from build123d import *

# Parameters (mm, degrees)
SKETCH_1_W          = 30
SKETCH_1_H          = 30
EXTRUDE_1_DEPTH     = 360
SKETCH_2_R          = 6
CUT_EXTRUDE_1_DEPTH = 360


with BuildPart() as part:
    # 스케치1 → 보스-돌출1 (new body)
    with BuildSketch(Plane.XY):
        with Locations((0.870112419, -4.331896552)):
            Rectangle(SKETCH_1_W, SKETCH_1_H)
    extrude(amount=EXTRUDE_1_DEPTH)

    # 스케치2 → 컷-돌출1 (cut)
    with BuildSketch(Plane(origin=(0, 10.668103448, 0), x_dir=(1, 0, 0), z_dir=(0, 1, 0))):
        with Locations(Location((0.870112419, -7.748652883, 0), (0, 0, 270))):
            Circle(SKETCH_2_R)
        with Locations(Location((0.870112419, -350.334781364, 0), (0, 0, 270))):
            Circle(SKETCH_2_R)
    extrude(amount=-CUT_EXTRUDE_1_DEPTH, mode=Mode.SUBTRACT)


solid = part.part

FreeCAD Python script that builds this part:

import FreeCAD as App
import Part
import Sketcher

V = App.Vector

doc = App.newDocument("Part")
body = doc.addObject("PartDesign::Body", "Body")

# Sketch on XY plane
sketch1 = body.newObject("Sketcher::SketchObject", "Sketch")
sketch1.AttachmentSupport = (doc.getObject("XY_Plane"), [""])
sketch1.MapMode = "FlatFace"
sketch1.addGeometry(Part.LineSegment(V(-14, 11, 0), V(-14, -19, 0)), False)
sketch1.addGeometry(Part.LineSegment(V(-14, -19, 0), V(16, -19, 0)), False)
sketch1.addGeometry(Part.LineSegment(V(16, -19, 0), V(16, 11, 0)), False)
sketch1.addGeometry(Part.LineSegment(V(16, 11, 0), V(-14, 11, 0)), False)
sketch1.addConstraint(Sketcher.Constraint("Coincident", 0, 2, 1, 1))
sketch1.addConstraint(Sketcher.Constraint("Coincident", 1, 2, 2, 1))
sketch1.addConstraint(Sketcher.Constraint("Coincident", 2, 2, 3, 1))
sketch1.addConstraint(Sketcher.Constraint("Coincident", 3, 2, 0, 1))
sketch1.addConstraint(Sketcher.Constraint("Vertical", 0))
sketch1.addConstraint(Sketcher.Constraint("Horizontal", 1))
sketch1.addConstraint(Sketcher.Constraint("Vertical", 2))
sketch1.addConstraint(Sketcher.Constraint("Horizontal", 3))
sketch1.addConstraint(Sketcher.Constraint("Equal", 3, 0))
sketch1.addConstraint(Sketcher.Constraint("DistanceX", 1, 1, 1, 2, 30.0))
sketch1.addConstraint(Sketcher.Constraint("DistanceX", 0, 2, -1, 1, 14.129888))
sketch1.addConstraint(Sketcher.Constraint("DistanceY", 0, 2, -1, 1, 19.331897))
pad1 = body.newObject("PartDesign::Pad", "Pad")
pad1.Profile = sketch1
pad1.Length = 360

# Sketch on XZ plane
sketch2 = body.newObject("Sketcher::SketchObject", "Sketch001")
sketch2.AttachmentSupport = (doc.getObject("XZ_Plane"), [""])
sketch2.MapMode = "FlatFace"
sketch2.AttachmentOffset = App.Placement(V(0, 0, -10.668103), App.Rotation())
sketch2.addGeometry(Part.Circle(V(1, 8, 0), V(0, 0, 1), 6), False)
sketch2.addGeometry(Part.Circle(V(1, 350, 0), V(0, 0, 1), 6), False)
sketch2.addConstraint(Sketcher.Constraint("Equal", 0, 1))
sketch2.addConstraint(Sketcher.Constraint("Vertical", 0, 3, 1, 3))
sketch2.addConstraint(Sketcher.Constraint("Diameter", 0, 12.0))
sketch2.addConstraint(Sketcher.Constraint("DistanceY", -1, 1, 1, 3, 350.334781))
sketch2.addConstraint(Sketcher.Constraint("DistanceY", 0, 3, 1, 3, 342.586128))
sketch2.addConstraint(Sketcher.Constraint("DistanceX", -1, 1, 0, 3, 0.870112))
pocket1 = body.newObject("PartDesign::Pocket", "Pocket")
pocket1.Profile = sketch2
pocket1.Length = 360
pocket1.Reversed = True

doc.recompute()
